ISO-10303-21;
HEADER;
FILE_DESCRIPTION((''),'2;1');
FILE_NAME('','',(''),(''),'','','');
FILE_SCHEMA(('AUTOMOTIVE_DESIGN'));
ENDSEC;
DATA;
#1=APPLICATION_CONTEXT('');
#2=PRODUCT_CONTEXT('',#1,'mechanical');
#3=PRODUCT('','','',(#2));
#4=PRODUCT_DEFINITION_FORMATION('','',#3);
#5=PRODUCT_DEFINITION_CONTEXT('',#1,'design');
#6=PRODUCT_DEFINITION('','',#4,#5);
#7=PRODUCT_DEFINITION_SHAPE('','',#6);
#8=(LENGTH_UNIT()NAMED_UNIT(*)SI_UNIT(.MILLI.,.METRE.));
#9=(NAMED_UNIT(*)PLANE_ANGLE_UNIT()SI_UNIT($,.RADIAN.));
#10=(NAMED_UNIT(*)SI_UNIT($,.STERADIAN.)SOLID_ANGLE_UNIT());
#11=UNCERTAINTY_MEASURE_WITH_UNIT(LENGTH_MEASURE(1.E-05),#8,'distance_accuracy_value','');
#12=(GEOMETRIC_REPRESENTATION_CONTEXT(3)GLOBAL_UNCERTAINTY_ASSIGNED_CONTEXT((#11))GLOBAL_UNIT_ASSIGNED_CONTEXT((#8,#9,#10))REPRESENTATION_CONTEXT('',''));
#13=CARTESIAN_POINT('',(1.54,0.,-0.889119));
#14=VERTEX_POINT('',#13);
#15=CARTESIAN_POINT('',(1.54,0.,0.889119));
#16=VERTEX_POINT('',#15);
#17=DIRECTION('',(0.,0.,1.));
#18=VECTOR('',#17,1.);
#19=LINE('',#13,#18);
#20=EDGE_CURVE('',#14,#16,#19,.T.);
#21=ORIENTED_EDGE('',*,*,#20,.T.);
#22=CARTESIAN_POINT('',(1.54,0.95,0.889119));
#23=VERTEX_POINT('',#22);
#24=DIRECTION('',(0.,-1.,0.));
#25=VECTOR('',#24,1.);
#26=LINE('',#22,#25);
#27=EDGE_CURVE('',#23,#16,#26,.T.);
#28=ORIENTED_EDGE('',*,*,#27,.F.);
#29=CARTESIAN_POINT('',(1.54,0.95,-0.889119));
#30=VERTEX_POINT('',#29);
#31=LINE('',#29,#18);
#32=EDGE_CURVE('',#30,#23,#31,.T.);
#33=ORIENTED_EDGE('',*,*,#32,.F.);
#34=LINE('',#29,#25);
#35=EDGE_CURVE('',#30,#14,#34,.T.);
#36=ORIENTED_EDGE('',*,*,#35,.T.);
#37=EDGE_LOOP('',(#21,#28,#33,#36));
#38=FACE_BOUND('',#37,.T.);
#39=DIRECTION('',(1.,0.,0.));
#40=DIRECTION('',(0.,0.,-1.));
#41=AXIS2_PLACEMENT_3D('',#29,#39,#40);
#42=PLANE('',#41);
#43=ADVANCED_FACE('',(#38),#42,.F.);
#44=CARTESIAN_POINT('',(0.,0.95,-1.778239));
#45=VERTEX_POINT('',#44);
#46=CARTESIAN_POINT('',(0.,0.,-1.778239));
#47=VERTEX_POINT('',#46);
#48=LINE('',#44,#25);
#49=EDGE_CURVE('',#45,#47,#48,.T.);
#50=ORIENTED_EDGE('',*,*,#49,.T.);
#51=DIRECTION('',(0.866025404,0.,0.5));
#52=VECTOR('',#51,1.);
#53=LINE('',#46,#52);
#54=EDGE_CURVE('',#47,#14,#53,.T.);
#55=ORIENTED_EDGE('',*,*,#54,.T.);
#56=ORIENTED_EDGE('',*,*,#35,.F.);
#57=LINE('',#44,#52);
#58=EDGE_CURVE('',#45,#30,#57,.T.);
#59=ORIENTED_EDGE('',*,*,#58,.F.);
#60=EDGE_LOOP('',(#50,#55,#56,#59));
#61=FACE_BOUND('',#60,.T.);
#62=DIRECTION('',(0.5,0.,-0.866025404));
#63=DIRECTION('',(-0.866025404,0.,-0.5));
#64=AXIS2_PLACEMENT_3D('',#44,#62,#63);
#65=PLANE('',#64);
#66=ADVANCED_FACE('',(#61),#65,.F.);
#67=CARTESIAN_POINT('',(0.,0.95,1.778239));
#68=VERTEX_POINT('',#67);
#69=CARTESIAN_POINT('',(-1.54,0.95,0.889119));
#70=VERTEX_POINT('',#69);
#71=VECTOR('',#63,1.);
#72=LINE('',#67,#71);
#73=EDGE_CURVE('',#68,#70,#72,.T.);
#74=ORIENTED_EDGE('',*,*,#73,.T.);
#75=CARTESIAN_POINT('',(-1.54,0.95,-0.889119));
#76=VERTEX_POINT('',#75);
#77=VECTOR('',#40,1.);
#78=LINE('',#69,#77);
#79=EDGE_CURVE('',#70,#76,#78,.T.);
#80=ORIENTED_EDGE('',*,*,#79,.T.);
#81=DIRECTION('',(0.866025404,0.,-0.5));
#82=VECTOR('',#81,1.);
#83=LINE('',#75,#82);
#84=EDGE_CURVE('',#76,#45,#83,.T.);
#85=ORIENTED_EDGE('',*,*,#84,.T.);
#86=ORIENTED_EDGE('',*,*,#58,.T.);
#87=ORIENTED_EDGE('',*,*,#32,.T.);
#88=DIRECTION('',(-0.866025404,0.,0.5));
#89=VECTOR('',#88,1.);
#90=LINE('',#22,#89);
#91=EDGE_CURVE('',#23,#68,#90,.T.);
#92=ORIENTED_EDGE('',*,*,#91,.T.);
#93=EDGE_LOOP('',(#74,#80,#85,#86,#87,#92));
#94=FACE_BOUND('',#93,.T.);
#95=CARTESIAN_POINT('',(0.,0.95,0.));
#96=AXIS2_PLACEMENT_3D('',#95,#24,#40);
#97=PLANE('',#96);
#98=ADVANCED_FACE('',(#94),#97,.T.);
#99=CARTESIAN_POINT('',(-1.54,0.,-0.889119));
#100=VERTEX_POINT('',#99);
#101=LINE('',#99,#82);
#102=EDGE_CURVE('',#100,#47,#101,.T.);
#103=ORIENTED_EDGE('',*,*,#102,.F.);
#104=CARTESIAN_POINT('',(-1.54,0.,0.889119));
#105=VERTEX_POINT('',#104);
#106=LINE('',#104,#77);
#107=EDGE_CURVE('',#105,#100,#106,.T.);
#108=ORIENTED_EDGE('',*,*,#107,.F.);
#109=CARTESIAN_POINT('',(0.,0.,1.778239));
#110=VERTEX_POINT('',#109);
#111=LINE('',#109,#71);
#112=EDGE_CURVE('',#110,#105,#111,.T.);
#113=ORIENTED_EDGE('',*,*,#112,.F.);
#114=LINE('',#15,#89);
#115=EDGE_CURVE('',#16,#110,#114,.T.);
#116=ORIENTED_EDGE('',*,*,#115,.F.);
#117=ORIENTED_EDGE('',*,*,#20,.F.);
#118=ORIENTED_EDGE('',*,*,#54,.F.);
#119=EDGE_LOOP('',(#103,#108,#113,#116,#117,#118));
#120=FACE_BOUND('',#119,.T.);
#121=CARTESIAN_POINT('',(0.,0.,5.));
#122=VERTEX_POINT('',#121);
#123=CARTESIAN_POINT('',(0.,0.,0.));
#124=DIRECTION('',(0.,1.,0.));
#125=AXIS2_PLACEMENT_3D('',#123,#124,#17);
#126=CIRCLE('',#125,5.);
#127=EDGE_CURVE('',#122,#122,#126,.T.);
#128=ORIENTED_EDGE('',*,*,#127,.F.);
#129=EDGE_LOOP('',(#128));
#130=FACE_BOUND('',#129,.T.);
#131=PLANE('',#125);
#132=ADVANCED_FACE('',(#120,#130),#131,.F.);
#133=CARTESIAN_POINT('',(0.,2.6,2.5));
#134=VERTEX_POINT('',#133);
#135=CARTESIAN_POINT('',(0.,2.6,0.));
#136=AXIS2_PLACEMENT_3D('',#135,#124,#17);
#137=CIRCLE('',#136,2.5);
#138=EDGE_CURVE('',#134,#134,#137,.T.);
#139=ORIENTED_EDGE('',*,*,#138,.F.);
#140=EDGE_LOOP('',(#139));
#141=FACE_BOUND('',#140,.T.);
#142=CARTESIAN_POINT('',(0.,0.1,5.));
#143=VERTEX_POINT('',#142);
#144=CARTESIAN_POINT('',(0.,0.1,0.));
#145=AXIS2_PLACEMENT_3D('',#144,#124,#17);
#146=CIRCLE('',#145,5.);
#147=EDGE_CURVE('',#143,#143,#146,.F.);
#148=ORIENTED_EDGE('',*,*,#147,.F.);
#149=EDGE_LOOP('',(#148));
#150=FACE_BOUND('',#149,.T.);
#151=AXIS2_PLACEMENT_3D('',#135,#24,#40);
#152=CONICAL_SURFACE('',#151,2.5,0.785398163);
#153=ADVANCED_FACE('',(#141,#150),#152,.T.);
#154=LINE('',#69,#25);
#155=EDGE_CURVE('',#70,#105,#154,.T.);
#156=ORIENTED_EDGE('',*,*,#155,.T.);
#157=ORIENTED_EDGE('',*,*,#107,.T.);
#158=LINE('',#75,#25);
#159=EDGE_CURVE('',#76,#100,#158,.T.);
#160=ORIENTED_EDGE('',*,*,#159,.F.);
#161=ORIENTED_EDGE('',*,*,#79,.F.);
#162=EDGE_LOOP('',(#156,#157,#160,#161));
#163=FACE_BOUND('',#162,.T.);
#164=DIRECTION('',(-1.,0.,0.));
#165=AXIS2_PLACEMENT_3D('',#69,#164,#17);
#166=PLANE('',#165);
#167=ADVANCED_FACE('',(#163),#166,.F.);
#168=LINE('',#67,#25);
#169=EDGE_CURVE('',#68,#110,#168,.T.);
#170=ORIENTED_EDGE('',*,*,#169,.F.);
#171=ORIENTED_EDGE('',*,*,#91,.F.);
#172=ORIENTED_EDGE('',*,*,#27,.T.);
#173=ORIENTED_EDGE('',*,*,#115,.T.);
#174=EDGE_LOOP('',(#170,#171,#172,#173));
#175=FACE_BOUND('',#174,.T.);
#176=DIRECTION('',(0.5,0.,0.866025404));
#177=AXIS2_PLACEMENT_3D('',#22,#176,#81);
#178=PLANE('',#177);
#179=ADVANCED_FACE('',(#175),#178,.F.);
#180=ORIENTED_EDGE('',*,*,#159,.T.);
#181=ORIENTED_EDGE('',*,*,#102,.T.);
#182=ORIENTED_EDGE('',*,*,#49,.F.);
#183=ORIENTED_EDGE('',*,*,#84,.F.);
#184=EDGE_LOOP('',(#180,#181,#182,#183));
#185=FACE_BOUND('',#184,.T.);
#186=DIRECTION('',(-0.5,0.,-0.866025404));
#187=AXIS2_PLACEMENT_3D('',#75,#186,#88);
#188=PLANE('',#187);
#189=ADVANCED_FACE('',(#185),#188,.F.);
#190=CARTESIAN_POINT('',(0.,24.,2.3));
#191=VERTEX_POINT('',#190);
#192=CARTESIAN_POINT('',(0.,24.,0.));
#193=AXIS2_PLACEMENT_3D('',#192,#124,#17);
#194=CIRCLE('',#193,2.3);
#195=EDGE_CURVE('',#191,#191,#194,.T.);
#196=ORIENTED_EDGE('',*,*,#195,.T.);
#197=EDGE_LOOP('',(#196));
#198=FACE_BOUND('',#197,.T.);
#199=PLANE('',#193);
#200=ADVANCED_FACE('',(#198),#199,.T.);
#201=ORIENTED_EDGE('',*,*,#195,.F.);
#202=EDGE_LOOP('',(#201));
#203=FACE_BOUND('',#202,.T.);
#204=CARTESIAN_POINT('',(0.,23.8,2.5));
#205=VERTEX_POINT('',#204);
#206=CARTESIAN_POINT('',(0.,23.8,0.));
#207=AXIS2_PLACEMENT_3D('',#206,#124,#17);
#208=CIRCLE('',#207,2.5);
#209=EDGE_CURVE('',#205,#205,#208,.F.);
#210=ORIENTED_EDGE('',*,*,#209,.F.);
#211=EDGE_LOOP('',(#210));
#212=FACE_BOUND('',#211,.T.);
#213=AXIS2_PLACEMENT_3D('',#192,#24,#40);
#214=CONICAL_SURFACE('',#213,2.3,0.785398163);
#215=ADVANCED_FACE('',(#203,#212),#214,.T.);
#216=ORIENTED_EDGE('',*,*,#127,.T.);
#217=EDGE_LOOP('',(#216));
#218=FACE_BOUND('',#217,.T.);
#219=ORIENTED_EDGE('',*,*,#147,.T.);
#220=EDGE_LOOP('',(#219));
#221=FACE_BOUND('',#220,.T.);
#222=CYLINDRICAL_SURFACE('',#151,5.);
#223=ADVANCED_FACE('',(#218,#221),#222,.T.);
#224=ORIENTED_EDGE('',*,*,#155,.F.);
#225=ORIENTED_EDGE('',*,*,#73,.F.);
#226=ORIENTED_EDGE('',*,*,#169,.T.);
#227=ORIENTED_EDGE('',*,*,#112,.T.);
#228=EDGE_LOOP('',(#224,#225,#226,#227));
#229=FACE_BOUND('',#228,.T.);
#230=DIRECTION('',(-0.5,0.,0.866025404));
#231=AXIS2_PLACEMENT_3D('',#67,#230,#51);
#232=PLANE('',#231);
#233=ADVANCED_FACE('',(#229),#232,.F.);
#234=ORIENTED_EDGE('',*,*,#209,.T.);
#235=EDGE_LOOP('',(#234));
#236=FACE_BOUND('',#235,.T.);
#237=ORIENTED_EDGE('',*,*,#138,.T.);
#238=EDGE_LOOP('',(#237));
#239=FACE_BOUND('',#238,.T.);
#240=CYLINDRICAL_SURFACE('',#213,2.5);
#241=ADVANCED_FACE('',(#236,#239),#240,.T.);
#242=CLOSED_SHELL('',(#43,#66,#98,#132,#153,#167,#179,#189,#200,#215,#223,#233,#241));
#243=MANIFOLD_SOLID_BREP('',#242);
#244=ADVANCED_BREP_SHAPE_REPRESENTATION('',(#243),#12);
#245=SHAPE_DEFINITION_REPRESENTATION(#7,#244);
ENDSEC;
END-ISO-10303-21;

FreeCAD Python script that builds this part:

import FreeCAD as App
import Part
import Sketcher
from FreeCAD import Vector
Q = App.Units.Quantity


def edges_at(feature, points):
    """Names of the edges that pass closest to the given points."""
    edges = feature.Shape.Edges
    near = lambda p: min(range(len(edges)), key=lambda i: edges[i].distToShape(Part.Vertex(*p))[0])
    return sorted({f"Edge{near(p) + 1}" for p in points})

doc = App.newDocument("Part")
params = doc.addObject("Spreadsheet::Sheet", "Params")
for row, (alias, value) in enumerate([
    ("sketch1_diameter", "10 mm"),
    ("pad1_length", "2.6 mm"),
    ("chamfer_size", "2.5 mm"),
    ("pocket1_length", "0.95 mm"),
    ("sketch3_diameter", "5 mm"),
    ("pad2_length", "21.4 mm"),
    ("chamfer2_size", "0.2 mm"),
], start=1):
    params.set(f"A{row}", alias)
    params.set(f"B{row}", "=" + value)
    params.setAlias(f"B{row}", alias)

body = doc.addObject("PartDesign::Body", "Body")

# Sketch on XZ plane
sketch1 = body.newObject("Sketcher::SketchObject", "Sketch")
sketch1.AttachmentSupport = (doc.getObject("XZ_Plane"), [""])
sketch1.MapMode = "FlatFace"
sketch1.addGeometry(Part.Circle(Vector(0, 0, 0), Vector(0, 0, 1), 5), False)
sketch1.addConstraint([
    Sketcher.Constraint("Coincident", 0, 3, -1, 1),
    Sketcher.Constraint("Diameter", 0, Q("10 mm")),
])
sketch1.setExpression("Constraints[1]", "Params.sketch1_diameter")
pad1 = body.newObject("PartDesign::Pad", "Pad")
pad1.Profile = sketch1
pad1.setExpression("Length", "Params.pad1_length")
pad1.Reversed = True
doc.recompute()

chamfer = body.newObject("PartDesign::Chamfer", "Chamfer")
chamfer.Base = (pad1, edges_at(pad1, [(0, 2.6, -5)]))
chamfer.setExpression("Size", "Params.chamfer_size")

# Sketch on XZ plane
sketch2 = body.newObject("Sketcher::SketchObject", "Sketch001")
sketch2.AttachmentSupport = (doc.getObject("XZ_Plane"), [""])
sketch2.MapMode = "FlatFace"
sketch2.addGeometry([
    Part.LineSegment(Vector(1.5, -0.9, 0), Vector(1.5, 0.9, 0)),  # 0
    Part.LineSegment(Vector(1.5, 0.9, 0), Vector(0, 1.8, 0)),  # 1
    Part.LineSegment(Vector(0, 1.8, 0), Vector(-1.5, 0.9, 0)),  # 2
    Part.LineSegment(Vector(-1.5, 0.9, 0), Vector(-1.5, -0.9, 0)),  # 3
    Part.LineSegment(Vector(-1.5, -0.9, 0), Vector(0, -1.8, 0)),  # 4
    Part.LineSegment(Vector(0, -1.8, 0), Vector(1.5, -0.9, 0)),  # 5
], False)
sketch2.addConstraint([
    Sketcher.Constraint("Coincident", 0, 2, 1, 1),
    Sketcher.Constraint("Coincident", 1, 2, 2, 1),
    Sketcher.Constraint("Coincident", 2, 2, 3, 1),
    Sketcher.Constraint("Coincident", 3, 2, 4, 1),
    Sketcher.Constraint("Coincident", 4, 2, 5, 1),
    Sketcher.Constraint("Coincident", 5, 2, 0, 1),
    Sketcher.Constraint("Vertical", 0),
    Sketcher.Constraint("Vertical", 3),
    Sketcher.Constraint("Symmetric", 0, 2, 3, 2, -1, 1),
    Sketcher.Constraint("Symmetric", 1, 2, 4, 2, -1, 1),
    Sketcher.Constraint("PointOnObject", 1, 2, -2),
    Sketcher.Constraint("Parallel", 2, 5),
    Sketcher.Constraint("Horizontal", 0, 2, 2, 2),
    Sketcher.Constraint("Angle", 1, Q("150 deg")),
    Sketcher.Constraint("DistanceX", -1, 1, 0, 2, Q("1.54 mm")),
    Sketcher.Constraint("DistanceY", 0, 1, 0, 2, Q("1.778239 mm")),
])
pocket1 = body.newObject("PartDesign::Pocket", "Pocket")
pocket1.Profile = sketch2
pocket1.setExpression("Length", "Params.pocket1_length")

# Sketch on XZ plane
sketch3 = body.newObject("Sketcher::SketchObject", "Sketch002")
sketch3.AttachmentSupport = (doc.getObject("XZ_Plane"), [""])
sketch3.MapMode = "FlatFace"
sketch3.AttachmentOffset = App.Placement(Vector(0, 0, -2.6), App.Rotation())
sketch3.addGeometry(Part.Circle(Vector(0, 0, 0), Vector(0, 0, 1), 2.5), False)
sketch3.addConstraint([
    Sketcher.Constraint("Coincident", 0, 3, -1, 1),
    Sketcher.Constraint("Diameter", 0, Q("5 mm")),
])
sketch3.setExpression("Constraints[1]", "Params.sketch3_diameter")
pad2 = body.newObject("PartDesign::Pad", "Pad001")
pad2.Profile = sketch3
pad2.setExpression("Length", "Params.pad2_length")
pad2.Reversed = True
doc.recompute()

chamfer2 = body.newObject("PartDesign::Chamfer", "Chamfer001")
chamfer2.Base = (pad2, edges_at(pad2, [(0, 24, -2.5)]))
chamfer2.setExpression("Size", "Params.chamfer2_size")

doc.recompute()
